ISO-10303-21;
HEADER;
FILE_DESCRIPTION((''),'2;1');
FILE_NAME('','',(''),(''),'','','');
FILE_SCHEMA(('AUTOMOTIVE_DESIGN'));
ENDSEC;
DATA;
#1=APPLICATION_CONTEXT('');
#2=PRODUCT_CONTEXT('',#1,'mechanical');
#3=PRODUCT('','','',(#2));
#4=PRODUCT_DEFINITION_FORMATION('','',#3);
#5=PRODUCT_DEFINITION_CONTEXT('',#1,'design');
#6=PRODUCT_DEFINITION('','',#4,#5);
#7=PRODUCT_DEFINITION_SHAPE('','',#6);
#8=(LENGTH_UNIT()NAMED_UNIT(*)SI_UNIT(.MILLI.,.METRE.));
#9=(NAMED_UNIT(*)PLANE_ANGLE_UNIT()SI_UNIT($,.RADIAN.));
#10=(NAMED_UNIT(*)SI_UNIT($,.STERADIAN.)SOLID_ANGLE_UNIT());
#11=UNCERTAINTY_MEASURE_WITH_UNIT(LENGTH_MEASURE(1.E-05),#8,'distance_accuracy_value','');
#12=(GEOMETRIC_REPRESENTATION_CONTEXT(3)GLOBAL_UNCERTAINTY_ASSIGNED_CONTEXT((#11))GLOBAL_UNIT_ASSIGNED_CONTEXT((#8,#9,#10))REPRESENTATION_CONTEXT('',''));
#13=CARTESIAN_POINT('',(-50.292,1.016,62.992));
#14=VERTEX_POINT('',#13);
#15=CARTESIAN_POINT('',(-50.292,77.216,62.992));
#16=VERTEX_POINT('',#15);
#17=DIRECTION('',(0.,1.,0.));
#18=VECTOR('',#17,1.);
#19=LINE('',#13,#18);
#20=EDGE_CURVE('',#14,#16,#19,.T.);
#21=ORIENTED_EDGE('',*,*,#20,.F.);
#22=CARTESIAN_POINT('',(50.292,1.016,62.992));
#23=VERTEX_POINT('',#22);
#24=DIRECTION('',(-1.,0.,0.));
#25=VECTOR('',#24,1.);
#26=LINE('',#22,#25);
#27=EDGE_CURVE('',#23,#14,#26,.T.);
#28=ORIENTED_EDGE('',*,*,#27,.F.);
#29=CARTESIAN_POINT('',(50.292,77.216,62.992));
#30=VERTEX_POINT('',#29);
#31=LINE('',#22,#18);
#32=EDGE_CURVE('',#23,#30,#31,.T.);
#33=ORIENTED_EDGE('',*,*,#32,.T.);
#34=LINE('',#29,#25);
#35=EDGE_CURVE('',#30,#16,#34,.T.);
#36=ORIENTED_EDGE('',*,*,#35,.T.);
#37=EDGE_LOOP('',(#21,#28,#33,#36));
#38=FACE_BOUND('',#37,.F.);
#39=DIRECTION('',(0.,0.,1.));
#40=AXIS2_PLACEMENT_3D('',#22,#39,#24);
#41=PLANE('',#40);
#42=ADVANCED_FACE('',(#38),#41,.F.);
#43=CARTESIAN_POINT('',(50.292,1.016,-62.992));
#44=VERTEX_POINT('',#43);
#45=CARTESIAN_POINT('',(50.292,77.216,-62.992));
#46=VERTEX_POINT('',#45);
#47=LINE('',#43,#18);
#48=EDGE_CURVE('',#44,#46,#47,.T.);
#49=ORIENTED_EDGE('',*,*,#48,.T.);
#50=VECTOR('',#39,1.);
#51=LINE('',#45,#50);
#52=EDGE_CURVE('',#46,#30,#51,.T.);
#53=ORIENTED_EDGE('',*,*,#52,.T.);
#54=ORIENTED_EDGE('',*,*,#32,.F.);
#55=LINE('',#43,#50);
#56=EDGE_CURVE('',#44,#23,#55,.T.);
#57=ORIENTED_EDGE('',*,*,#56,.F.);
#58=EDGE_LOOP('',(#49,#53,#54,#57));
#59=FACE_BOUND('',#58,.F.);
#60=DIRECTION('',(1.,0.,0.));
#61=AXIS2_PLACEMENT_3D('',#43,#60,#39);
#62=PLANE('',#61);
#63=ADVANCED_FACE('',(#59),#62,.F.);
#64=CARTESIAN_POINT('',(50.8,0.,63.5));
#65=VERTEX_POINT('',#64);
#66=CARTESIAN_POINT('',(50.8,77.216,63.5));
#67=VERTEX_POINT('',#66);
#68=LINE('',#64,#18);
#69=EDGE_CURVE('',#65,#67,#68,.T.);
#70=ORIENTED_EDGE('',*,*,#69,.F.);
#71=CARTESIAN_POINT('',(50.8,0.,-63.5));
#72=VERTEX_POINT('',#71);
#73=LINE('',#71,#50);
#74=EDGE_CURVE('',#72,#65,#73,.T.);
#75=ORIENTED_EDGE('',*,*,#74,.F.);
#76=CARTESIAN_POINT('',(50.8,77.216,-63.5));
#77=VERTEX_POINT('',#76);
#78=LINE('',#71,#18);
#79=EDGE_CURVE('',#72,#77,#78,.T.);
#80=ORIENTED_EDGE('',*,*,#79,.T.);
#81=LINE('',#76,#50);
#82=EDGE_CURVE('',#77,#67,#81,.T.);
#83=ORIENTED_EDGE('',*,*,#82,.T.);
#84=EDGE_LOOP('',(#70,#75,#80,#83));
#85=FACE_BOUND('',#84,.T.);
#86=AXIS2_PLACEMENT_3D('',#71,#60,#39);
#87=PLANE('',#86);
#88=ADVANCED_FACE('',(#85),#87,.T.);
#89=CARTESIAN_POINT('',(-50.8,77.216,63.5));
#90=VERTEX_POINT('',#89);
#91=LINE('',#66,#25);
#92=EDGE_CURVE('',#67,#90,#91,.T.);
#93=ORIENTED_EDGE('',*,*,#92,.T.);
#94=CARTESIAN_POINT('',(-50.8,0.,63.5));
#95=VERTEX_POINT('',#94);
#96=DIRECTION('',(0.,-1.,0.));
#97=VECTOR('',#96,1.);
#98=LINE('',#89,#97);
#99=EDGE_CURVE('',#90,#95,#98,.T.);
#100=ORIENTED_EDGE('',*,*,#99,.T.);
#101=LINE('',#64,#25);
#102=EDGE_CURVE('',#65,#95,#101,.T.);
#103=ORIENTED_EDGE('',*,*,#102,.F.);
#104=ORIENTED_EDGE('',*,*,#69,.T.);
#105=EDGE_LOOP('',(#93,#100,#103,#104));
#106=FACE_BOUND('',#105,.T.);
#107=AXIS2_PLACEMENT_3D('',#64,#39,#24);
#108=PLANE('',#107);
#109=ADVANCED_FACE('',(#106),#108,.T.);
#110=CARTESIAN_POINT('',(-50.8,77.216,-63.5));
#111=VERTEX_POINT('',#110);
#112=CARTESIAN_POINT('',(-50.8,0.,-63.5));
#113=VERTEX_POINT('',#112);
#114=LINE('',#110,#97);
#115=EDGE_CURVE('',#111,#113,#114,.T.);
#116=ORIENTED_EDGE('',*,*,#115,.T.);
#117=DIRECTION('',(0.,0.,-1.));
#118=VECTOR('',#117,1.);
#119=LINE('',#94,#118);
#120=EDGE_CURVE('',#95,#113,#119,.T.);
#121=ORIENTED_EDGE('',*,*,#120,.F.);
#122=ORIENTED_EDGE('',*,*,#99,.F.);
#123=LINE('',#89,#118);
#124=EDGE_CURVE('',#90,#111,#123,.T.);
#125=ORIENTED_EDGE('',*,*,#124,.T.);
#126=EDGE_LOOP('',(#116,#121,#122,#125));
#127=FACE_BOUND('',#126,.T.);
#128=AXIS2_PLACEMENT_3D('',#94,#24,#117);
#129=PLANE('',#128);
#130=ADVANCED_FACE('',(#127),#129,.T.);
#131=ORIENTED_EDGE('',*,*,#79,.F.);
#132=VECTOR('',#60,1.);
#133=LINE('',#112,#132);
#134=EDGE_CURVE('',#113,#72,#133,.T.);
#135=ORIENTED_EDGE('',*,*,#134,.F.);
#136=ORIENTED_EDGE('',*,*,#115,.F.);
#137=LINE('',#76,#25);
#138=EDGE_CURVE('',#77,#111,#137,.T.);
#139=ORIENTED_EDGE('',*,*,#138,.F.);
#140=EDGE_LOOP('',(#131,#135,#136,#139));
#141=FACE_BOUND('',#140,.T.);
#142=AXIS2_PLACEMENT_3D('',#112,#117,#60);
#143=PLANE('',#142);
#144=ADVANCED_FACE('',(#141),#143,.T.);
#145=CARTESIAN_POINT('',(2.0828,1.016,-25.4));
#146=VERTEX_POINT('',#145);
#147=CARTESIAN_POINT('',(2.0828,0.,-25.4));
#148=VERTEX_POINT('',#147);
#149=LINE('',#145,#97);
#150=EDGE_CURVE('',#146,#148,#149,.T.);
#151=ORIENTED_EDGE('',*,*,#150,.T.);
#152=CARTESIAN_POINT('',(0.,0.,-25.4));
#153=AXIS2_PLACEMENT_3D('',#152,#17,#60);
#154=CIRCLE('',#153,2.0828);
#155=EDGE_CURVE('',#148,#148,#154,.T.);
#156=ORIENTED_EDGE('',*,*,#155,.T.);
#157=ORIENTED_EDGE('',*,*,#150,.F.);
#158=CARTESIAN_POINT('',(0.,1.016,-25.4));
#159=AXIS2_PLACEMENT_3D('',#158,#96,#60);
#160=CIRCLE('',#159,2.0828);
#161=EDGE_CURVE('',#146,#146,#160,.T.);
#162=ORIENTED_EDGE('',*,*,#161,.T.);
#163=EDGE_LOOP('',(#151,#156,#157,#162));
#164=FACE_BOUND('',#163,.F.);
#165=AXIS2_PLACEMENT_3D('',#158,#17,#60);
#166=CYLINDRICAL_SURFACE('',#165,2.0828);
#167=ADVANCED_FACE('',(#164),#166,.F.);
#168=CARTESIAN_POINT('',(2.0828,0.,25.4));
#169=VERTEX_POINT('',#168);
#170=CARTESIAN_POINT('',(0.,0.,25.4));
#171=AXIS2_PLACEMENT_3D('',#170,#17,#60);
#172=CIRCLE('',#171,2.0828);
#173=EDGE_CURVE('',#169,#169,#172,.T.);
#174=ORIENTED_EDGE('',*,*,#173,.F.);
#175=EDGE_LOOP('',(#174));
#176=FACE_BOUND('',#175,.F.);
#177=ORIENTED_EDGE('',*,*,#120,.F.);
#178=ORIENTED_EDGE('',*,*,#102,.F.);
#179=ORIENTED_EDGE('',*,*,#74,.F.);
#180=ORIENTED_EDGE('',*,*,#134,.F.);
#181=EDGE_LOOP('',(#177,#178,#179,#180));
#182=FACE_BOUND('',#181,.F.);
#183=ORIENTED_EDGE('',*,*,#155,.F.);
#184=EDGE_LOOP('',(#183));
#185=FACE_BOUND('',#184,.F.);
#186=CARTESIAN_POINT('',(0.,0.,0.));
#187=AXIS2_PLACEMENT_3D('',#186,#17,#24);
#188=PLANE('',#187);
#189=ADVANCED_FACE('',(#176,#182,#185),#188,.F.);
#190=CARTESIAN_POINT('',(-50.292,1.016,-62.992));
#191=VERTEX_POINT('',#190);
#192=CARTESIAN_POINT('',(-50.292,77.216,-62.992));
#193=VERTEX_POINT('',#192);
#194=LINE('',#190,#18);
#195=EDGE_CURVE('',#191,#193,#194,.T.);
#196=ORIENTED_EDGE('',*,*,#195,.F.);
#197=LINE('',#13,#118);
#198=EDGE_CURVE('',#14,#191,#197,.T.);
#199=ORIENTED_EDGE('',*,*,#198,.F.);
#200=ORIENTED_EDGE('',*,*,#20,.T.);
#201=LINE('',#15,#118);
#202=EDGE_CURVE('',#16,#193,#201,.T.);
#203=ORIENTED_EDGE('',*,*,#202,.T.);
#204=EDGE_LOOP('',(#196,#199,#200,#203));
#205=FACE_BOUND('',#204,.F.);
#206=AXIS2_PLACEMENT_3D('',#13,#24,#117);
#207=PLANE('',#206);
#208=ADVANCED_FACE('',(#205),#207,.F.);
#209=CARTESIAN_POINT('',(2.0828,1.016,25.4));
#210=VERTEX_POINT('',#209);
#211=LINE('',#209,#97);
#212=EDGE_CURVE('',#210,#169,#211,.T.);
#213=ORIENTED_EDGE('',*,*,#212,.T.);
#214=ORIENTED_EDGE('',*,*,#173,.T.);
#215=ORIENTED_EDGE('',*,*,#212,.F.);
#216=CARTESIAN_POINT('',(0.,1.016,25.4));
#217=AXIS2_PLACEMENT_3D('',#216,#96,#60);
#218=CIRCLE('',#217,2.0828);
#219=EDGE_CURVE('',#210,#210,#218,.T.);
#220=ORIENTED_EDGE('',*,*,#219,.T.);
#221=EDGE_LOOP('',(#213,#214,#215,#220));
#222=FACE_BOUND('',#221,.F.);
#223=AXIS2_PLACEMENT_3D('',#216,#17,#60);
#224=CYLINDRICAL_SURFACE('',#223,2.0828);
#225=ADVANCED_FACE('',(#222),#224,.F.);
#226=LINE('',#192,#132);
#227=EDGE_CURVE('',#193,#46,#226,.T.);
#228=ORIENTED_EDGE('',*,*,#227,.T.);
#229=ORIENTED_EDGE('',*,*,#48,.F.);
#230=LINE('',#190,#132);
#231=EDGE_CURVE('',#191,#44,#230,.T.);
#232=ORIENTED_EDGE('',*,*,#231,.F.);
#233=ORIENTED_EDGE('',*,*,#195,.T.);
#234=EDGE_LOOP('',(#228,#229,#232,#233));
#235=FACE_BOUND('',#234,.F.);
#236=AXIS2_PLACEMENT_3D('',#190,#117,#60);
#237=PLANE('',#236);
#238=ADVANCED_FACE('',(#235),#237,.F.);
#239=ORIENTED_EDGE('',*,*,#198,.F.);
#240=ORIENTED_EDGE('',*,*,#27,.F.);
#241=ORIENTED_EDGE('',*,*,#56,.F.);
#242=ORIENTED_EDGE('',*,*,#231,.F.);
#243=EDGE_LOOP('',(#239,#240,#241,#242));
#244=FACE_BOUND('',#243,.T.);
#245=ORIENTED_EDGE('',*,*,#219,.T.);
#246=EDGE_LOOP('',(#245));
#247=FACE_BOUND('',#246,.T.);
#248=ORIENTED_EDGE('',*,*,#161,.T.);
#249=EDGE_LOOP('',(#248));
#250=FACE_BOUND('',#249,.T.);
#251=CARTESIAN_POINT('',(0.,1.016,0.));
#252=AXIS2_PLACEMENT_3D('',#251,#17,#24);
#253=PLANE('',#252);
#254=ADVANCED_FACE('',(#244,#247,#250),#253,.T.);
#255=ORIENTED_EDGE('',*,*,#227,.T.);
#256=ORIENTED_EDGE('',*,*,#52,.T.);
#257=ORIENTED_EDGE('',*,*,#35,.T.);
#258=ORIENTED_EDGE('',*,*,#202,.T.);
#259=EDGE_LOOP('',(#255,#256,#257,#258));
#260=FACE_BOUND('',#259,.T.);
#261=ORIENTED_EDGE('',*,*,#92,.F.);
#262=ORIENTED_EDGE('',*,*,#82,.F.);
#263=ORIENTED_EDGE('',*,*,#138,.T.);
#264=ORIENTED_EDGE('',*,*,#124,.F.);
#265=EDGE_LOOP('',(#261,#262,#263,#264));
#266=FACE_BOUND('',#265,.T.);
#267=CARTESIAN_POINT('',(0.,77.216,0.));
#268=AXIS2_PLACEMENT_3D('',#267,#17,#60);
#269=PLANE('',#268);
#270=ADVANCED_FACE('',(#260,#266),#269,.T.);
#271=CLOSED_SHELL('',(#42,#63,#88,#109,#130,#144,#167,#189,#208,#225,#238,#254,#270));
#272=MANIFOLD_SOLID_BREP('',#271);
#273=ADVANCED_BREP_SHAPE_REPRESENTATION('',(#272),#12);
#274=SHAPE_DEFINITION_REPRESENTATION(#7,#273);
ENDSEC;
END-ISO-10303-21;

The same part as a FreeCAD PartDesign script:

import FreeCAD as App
import Part
import Sketcher
Q = App.Units.Quantity

doc = App.newDocument("Part")
params = doc.addObject("Spreadsheet::Sheet", "Params")
for row, (alias, value) in enumerate([
    ("sketch1_width", "4 in"),
    ("sketch1_height", "5 in"),
    ("pad1_length", "0.04 in"),
    ("sketch2_width", "3.96 in"),
    ("sketch2_height", "4.96 in"),
    ("sketch2_width2", "4 in"),
    ("sketch2_height2", "5 in"),
    ("pad2_length", "3 in"),
    ("sketch3_diameter", "0.164 in"),
], start=1):
    params.set(f"A{row}", alias)
    params.set(f"B{row}", "=" + value)
    params.setAlias(f"B{row}", alias)

body = doc.addObject("PartDesign::Body", "Body")

# Sketch on XZ plane
sketch1 = body.newObject("Sketcher::SketchObject", "Sketch")
sketch1.AttachmentSupport = (doc.getObject("XZ_Plane"), [""])
sketch1.MapMode = "FlatFace"
sketch1.addGeometry(Part.LineSegment(App.Vector(-50.8, 63.5, 0), App.Vector(50.8, 63.5, 0)), False)
sketch1.addGeometry(Part.LineSegment(App.Vector(50.8, 63.5, 0), App.Vector(50.8, -63.5, 0)), False)
sketch1.addGeometry(Part.LineSegment(App.Vector(50.8, -63.5, 0), App.Vector(-50.8, -63.5, 0)), False)
sketch1.addGeometry(Part.LineSegment(App.Vector(-50.8, -63.5, 0), App.Vector(-50.8, 63.5, 0)), False)
sketch1.addConstraint(Sketcher.Constraint("Coincident", 0, 2, 1, 1))
sketch1.addConstraint(Sketcher.Constraint("Coincident", 1, 2, 2, 1))
sketch1.addConstraint(Sketcher.Constraint("Coincident", 2, 2, 3, 1))
sketch1.addConstraint(Sketcher.Constraint("Coincident", 3, 2, 0, 1))
sketch1.addConstraint(Sketcher.Constraint("Horizontal", 0))
sketch1.addConstraint(Sketcher.Constraint("Vertical", 1))
sketch1.addConstraint(Sketcher.Constraint("Horizontal", 2))
sketch1.addConstraint(Sketcher.Constraint("Vertical", 3))
sketch1.addConstraint(Sketcher.Constraint("Symmetric", 0, 2, 2, 2, -1, 1))
sketch1.addConstraint(Sketcher.Constraint("DistanceX", 0, 1, 0, 2, Q("4 in")))
sketch1.addConstraint(Sketcher.Constraint("DistanceY", 1, 2, 1, 1, Q("5 in")))
sketch1.setExpression("Constraints[9]", "Params.sketch1_width")
sketch1.setExpression("Constraints[10]", "Params.sketch1_height")
pad1 = body.newObject("PartDesign::Pad", "Pad")
pad1.Profile = sketch1
pad1.setExpression("Length", "Params.pad1_length")
pad1.Reversed = True

# Sketch on XZ plane
sketch2 = body.newObject("Sketcher::SketchObject", "Sketch001")
sketch2.AttachmentSupport = (doc.getObject("XZ_Plane"), [""])
sketch2.MapMode = "FlatFace"
sketch2.AttachmentOffset = App.Placement(App.Vector(0, 0, -0.04 * 25.4), App.Rotation())
sketch2.addGeometry(Part.LineSegment(App.Vector(50.8, 63.5, 0), App.Vector(50.8, -63.5, 0)), False)
sketch2.addGeometry(Part.LineSegment(App.Vector(50.8, -63.5, 0), App.Vector(-50.8, -63.5, 0)), False)
sketch2.addGeometry(Part.LineSegment(App.Vector(-50.8, -63.5, 0), App.Vector(-50.8, 63.5, 0)), False)
sketch2.addGeometry(Part.LineSegment(App.Vector(-50.8, 63.5, 0), App.Vector(50.8, 63.5, 0)), False)
sketch2.addGeometry(Part.LineSegment(App.Vector(50.292, -62.992, 0), App.Vector(50.292, 62.992, 0)), False)
sketch2.addGeometry(Part.LineSegment(App.Vector(50.292, 62.992, 0), App.Vector(-50.292, 62.992, 0)), False)
sketch2.addGeometry(Part.LineSegment(App.Vector(-50.292, 62.992, 0), App.Vector(-50.292, -62.992, 0)), False)
sketch2.addGeometry(Part.LineSegment(App.Vector(-50.292, -62.992, 0), App.Vector(50.292, -62.992, 0)), False)
sketch2.addConstraint(Sketcher.Constraint("Coincident", 0, 2, 1, 1))
sketch2.addConstraint(Sketcher.Constraint("Coincident", 1, 2, 2, 1))
sketch2.addConstraint(Sketcher.Constraint("Coincident", 2, 2, 3, 1))
sketch2.addConstraint(Sketcher.Constraint("Coincident", 3, 2, 0, 1))
sketch2.addConstraint(Sketcher.Constraint("Coincident", 4, 2, 5, 1))
sketch2.addConstraint(Sketcher.Constraint("Coincident", 5, 2, 6, 1))
sketch2.addConstraint(Sketcher.Constraint("Coincident", 6, 2, 7, 1))
sketch2.addConstraint(Sketcher.Constraint("Coincident", 7, 2, 4, 1))
sketch2.addConstraint(Sketcher.Constraint("Vertical", 0))
sketch2.addConstraint(Sketcher.Constraint("Horizontal", 1))
sketch2.addConstraint(Sketcher.Constraint("Vertical", 2))
sketch2.addConstraint(Sketcher.Constraint("Horizontal", 3))
sketch2.addConstraint(Sketcher.Constraint("Vertical", 4))
sketch2.addConstraint(Sketcher.Constraint("Horizontal", 5))
sketch2.addConstraint(Sketcher.Constraint("Vertical", 6))
sketch2.addConstraint(Sketcher.Constraint("Horizontal", 7))
sketch2.addConstraint(Sketcher.Constraint("Symmetric", 0, 2, 2, 2, -1, 1))
sketch2.addConstraint(Sketcher.Constraint("Symmetric", 4, 2, 6, 2, -1, 1))
sketch2.addConstraint(Sketcher.Constraint("DistanceX", 5, 2, 5, 1, Q("3.96 in")))
sketch2.addConstraint(Sketcher.Constraint("DistanceY", 4, 1, 4, 2, Q("4.96 in")))
sketch2.addConstraint(Sketcher.Constraint("DistanceX", 1, 2, 1, 1, Q("4 in")))
sketch2.addConstraint(Sketcher.Constraint("DistanceY", 0, 2, 0, 1, Q("5 in")))
sketch2.setExpression("Constraints[18]", "Params.sketch2_width")
sketch2.setExpression("Constraints[19]", "Params.sketch2_height")
sketch2.setExpression("Constraints[20]", "Params.sketch2_width2")
sketch2.setExpression("Constraints[21]", "Params.sketch2_height2")
pad2 = body.newObject("PartDesign::Pad", "Pad001")
pad2.Profile = sketch2
pad2.setExpression("Length", "Params.pad2_length")
pad2.Reversed = True

# Sketch on XZ plane
sketch3 = body.newObject("Sketcher::SketchObject", "Sketch002")
sketch3.AttachmentSupport = (doc.getObject("XZ_Plane"), [""])
sketch3.MapMode = "FlatFace"
sketch3.AttachmentOffset = App.Placement(App.Vector(0, 0, -0.04 * 25.4), App.Rotation())
sketch3.addGeometry(Part.Circle(App.Vector(0, 25.4, 0), App.Vector(0, 0, 1), 2.0828), False)
sketch3.addGeometry(Part.Circle(App.Vector(0, -25.4, 0), App.Vector(0, 0, 1), 2.0828), False)
sketch3.addConstraint(Sketcher.Constraint("Equal", 0, 1))
sketch3.addConstraint(Sketcher.Constraint("Symmetric", 0, 3, 1, 3, -1, 1))
sketch3.addConstraint(Sketcher.Constraint("PointOnObject", 0, 3, -2))
sketch3.addConstraint(Sketcher.Constraint("Diameter", 0, Q("0.164 in")))
sketch3.addConstraint(Sketcher.Constraint("DistanceY", -1, 1, 0, 3, Q("1 in")))
sketch3.setExpression("Constraints[3]", "Params.sketch3_diameter")
pocket1 = body.newObject("PartDesign::Pocket", "Pocket")
pocket1.Profile = sketch3
pocket1.Type = "ThroughAll"
pocket1.Reversed = True

doc.recompute()
